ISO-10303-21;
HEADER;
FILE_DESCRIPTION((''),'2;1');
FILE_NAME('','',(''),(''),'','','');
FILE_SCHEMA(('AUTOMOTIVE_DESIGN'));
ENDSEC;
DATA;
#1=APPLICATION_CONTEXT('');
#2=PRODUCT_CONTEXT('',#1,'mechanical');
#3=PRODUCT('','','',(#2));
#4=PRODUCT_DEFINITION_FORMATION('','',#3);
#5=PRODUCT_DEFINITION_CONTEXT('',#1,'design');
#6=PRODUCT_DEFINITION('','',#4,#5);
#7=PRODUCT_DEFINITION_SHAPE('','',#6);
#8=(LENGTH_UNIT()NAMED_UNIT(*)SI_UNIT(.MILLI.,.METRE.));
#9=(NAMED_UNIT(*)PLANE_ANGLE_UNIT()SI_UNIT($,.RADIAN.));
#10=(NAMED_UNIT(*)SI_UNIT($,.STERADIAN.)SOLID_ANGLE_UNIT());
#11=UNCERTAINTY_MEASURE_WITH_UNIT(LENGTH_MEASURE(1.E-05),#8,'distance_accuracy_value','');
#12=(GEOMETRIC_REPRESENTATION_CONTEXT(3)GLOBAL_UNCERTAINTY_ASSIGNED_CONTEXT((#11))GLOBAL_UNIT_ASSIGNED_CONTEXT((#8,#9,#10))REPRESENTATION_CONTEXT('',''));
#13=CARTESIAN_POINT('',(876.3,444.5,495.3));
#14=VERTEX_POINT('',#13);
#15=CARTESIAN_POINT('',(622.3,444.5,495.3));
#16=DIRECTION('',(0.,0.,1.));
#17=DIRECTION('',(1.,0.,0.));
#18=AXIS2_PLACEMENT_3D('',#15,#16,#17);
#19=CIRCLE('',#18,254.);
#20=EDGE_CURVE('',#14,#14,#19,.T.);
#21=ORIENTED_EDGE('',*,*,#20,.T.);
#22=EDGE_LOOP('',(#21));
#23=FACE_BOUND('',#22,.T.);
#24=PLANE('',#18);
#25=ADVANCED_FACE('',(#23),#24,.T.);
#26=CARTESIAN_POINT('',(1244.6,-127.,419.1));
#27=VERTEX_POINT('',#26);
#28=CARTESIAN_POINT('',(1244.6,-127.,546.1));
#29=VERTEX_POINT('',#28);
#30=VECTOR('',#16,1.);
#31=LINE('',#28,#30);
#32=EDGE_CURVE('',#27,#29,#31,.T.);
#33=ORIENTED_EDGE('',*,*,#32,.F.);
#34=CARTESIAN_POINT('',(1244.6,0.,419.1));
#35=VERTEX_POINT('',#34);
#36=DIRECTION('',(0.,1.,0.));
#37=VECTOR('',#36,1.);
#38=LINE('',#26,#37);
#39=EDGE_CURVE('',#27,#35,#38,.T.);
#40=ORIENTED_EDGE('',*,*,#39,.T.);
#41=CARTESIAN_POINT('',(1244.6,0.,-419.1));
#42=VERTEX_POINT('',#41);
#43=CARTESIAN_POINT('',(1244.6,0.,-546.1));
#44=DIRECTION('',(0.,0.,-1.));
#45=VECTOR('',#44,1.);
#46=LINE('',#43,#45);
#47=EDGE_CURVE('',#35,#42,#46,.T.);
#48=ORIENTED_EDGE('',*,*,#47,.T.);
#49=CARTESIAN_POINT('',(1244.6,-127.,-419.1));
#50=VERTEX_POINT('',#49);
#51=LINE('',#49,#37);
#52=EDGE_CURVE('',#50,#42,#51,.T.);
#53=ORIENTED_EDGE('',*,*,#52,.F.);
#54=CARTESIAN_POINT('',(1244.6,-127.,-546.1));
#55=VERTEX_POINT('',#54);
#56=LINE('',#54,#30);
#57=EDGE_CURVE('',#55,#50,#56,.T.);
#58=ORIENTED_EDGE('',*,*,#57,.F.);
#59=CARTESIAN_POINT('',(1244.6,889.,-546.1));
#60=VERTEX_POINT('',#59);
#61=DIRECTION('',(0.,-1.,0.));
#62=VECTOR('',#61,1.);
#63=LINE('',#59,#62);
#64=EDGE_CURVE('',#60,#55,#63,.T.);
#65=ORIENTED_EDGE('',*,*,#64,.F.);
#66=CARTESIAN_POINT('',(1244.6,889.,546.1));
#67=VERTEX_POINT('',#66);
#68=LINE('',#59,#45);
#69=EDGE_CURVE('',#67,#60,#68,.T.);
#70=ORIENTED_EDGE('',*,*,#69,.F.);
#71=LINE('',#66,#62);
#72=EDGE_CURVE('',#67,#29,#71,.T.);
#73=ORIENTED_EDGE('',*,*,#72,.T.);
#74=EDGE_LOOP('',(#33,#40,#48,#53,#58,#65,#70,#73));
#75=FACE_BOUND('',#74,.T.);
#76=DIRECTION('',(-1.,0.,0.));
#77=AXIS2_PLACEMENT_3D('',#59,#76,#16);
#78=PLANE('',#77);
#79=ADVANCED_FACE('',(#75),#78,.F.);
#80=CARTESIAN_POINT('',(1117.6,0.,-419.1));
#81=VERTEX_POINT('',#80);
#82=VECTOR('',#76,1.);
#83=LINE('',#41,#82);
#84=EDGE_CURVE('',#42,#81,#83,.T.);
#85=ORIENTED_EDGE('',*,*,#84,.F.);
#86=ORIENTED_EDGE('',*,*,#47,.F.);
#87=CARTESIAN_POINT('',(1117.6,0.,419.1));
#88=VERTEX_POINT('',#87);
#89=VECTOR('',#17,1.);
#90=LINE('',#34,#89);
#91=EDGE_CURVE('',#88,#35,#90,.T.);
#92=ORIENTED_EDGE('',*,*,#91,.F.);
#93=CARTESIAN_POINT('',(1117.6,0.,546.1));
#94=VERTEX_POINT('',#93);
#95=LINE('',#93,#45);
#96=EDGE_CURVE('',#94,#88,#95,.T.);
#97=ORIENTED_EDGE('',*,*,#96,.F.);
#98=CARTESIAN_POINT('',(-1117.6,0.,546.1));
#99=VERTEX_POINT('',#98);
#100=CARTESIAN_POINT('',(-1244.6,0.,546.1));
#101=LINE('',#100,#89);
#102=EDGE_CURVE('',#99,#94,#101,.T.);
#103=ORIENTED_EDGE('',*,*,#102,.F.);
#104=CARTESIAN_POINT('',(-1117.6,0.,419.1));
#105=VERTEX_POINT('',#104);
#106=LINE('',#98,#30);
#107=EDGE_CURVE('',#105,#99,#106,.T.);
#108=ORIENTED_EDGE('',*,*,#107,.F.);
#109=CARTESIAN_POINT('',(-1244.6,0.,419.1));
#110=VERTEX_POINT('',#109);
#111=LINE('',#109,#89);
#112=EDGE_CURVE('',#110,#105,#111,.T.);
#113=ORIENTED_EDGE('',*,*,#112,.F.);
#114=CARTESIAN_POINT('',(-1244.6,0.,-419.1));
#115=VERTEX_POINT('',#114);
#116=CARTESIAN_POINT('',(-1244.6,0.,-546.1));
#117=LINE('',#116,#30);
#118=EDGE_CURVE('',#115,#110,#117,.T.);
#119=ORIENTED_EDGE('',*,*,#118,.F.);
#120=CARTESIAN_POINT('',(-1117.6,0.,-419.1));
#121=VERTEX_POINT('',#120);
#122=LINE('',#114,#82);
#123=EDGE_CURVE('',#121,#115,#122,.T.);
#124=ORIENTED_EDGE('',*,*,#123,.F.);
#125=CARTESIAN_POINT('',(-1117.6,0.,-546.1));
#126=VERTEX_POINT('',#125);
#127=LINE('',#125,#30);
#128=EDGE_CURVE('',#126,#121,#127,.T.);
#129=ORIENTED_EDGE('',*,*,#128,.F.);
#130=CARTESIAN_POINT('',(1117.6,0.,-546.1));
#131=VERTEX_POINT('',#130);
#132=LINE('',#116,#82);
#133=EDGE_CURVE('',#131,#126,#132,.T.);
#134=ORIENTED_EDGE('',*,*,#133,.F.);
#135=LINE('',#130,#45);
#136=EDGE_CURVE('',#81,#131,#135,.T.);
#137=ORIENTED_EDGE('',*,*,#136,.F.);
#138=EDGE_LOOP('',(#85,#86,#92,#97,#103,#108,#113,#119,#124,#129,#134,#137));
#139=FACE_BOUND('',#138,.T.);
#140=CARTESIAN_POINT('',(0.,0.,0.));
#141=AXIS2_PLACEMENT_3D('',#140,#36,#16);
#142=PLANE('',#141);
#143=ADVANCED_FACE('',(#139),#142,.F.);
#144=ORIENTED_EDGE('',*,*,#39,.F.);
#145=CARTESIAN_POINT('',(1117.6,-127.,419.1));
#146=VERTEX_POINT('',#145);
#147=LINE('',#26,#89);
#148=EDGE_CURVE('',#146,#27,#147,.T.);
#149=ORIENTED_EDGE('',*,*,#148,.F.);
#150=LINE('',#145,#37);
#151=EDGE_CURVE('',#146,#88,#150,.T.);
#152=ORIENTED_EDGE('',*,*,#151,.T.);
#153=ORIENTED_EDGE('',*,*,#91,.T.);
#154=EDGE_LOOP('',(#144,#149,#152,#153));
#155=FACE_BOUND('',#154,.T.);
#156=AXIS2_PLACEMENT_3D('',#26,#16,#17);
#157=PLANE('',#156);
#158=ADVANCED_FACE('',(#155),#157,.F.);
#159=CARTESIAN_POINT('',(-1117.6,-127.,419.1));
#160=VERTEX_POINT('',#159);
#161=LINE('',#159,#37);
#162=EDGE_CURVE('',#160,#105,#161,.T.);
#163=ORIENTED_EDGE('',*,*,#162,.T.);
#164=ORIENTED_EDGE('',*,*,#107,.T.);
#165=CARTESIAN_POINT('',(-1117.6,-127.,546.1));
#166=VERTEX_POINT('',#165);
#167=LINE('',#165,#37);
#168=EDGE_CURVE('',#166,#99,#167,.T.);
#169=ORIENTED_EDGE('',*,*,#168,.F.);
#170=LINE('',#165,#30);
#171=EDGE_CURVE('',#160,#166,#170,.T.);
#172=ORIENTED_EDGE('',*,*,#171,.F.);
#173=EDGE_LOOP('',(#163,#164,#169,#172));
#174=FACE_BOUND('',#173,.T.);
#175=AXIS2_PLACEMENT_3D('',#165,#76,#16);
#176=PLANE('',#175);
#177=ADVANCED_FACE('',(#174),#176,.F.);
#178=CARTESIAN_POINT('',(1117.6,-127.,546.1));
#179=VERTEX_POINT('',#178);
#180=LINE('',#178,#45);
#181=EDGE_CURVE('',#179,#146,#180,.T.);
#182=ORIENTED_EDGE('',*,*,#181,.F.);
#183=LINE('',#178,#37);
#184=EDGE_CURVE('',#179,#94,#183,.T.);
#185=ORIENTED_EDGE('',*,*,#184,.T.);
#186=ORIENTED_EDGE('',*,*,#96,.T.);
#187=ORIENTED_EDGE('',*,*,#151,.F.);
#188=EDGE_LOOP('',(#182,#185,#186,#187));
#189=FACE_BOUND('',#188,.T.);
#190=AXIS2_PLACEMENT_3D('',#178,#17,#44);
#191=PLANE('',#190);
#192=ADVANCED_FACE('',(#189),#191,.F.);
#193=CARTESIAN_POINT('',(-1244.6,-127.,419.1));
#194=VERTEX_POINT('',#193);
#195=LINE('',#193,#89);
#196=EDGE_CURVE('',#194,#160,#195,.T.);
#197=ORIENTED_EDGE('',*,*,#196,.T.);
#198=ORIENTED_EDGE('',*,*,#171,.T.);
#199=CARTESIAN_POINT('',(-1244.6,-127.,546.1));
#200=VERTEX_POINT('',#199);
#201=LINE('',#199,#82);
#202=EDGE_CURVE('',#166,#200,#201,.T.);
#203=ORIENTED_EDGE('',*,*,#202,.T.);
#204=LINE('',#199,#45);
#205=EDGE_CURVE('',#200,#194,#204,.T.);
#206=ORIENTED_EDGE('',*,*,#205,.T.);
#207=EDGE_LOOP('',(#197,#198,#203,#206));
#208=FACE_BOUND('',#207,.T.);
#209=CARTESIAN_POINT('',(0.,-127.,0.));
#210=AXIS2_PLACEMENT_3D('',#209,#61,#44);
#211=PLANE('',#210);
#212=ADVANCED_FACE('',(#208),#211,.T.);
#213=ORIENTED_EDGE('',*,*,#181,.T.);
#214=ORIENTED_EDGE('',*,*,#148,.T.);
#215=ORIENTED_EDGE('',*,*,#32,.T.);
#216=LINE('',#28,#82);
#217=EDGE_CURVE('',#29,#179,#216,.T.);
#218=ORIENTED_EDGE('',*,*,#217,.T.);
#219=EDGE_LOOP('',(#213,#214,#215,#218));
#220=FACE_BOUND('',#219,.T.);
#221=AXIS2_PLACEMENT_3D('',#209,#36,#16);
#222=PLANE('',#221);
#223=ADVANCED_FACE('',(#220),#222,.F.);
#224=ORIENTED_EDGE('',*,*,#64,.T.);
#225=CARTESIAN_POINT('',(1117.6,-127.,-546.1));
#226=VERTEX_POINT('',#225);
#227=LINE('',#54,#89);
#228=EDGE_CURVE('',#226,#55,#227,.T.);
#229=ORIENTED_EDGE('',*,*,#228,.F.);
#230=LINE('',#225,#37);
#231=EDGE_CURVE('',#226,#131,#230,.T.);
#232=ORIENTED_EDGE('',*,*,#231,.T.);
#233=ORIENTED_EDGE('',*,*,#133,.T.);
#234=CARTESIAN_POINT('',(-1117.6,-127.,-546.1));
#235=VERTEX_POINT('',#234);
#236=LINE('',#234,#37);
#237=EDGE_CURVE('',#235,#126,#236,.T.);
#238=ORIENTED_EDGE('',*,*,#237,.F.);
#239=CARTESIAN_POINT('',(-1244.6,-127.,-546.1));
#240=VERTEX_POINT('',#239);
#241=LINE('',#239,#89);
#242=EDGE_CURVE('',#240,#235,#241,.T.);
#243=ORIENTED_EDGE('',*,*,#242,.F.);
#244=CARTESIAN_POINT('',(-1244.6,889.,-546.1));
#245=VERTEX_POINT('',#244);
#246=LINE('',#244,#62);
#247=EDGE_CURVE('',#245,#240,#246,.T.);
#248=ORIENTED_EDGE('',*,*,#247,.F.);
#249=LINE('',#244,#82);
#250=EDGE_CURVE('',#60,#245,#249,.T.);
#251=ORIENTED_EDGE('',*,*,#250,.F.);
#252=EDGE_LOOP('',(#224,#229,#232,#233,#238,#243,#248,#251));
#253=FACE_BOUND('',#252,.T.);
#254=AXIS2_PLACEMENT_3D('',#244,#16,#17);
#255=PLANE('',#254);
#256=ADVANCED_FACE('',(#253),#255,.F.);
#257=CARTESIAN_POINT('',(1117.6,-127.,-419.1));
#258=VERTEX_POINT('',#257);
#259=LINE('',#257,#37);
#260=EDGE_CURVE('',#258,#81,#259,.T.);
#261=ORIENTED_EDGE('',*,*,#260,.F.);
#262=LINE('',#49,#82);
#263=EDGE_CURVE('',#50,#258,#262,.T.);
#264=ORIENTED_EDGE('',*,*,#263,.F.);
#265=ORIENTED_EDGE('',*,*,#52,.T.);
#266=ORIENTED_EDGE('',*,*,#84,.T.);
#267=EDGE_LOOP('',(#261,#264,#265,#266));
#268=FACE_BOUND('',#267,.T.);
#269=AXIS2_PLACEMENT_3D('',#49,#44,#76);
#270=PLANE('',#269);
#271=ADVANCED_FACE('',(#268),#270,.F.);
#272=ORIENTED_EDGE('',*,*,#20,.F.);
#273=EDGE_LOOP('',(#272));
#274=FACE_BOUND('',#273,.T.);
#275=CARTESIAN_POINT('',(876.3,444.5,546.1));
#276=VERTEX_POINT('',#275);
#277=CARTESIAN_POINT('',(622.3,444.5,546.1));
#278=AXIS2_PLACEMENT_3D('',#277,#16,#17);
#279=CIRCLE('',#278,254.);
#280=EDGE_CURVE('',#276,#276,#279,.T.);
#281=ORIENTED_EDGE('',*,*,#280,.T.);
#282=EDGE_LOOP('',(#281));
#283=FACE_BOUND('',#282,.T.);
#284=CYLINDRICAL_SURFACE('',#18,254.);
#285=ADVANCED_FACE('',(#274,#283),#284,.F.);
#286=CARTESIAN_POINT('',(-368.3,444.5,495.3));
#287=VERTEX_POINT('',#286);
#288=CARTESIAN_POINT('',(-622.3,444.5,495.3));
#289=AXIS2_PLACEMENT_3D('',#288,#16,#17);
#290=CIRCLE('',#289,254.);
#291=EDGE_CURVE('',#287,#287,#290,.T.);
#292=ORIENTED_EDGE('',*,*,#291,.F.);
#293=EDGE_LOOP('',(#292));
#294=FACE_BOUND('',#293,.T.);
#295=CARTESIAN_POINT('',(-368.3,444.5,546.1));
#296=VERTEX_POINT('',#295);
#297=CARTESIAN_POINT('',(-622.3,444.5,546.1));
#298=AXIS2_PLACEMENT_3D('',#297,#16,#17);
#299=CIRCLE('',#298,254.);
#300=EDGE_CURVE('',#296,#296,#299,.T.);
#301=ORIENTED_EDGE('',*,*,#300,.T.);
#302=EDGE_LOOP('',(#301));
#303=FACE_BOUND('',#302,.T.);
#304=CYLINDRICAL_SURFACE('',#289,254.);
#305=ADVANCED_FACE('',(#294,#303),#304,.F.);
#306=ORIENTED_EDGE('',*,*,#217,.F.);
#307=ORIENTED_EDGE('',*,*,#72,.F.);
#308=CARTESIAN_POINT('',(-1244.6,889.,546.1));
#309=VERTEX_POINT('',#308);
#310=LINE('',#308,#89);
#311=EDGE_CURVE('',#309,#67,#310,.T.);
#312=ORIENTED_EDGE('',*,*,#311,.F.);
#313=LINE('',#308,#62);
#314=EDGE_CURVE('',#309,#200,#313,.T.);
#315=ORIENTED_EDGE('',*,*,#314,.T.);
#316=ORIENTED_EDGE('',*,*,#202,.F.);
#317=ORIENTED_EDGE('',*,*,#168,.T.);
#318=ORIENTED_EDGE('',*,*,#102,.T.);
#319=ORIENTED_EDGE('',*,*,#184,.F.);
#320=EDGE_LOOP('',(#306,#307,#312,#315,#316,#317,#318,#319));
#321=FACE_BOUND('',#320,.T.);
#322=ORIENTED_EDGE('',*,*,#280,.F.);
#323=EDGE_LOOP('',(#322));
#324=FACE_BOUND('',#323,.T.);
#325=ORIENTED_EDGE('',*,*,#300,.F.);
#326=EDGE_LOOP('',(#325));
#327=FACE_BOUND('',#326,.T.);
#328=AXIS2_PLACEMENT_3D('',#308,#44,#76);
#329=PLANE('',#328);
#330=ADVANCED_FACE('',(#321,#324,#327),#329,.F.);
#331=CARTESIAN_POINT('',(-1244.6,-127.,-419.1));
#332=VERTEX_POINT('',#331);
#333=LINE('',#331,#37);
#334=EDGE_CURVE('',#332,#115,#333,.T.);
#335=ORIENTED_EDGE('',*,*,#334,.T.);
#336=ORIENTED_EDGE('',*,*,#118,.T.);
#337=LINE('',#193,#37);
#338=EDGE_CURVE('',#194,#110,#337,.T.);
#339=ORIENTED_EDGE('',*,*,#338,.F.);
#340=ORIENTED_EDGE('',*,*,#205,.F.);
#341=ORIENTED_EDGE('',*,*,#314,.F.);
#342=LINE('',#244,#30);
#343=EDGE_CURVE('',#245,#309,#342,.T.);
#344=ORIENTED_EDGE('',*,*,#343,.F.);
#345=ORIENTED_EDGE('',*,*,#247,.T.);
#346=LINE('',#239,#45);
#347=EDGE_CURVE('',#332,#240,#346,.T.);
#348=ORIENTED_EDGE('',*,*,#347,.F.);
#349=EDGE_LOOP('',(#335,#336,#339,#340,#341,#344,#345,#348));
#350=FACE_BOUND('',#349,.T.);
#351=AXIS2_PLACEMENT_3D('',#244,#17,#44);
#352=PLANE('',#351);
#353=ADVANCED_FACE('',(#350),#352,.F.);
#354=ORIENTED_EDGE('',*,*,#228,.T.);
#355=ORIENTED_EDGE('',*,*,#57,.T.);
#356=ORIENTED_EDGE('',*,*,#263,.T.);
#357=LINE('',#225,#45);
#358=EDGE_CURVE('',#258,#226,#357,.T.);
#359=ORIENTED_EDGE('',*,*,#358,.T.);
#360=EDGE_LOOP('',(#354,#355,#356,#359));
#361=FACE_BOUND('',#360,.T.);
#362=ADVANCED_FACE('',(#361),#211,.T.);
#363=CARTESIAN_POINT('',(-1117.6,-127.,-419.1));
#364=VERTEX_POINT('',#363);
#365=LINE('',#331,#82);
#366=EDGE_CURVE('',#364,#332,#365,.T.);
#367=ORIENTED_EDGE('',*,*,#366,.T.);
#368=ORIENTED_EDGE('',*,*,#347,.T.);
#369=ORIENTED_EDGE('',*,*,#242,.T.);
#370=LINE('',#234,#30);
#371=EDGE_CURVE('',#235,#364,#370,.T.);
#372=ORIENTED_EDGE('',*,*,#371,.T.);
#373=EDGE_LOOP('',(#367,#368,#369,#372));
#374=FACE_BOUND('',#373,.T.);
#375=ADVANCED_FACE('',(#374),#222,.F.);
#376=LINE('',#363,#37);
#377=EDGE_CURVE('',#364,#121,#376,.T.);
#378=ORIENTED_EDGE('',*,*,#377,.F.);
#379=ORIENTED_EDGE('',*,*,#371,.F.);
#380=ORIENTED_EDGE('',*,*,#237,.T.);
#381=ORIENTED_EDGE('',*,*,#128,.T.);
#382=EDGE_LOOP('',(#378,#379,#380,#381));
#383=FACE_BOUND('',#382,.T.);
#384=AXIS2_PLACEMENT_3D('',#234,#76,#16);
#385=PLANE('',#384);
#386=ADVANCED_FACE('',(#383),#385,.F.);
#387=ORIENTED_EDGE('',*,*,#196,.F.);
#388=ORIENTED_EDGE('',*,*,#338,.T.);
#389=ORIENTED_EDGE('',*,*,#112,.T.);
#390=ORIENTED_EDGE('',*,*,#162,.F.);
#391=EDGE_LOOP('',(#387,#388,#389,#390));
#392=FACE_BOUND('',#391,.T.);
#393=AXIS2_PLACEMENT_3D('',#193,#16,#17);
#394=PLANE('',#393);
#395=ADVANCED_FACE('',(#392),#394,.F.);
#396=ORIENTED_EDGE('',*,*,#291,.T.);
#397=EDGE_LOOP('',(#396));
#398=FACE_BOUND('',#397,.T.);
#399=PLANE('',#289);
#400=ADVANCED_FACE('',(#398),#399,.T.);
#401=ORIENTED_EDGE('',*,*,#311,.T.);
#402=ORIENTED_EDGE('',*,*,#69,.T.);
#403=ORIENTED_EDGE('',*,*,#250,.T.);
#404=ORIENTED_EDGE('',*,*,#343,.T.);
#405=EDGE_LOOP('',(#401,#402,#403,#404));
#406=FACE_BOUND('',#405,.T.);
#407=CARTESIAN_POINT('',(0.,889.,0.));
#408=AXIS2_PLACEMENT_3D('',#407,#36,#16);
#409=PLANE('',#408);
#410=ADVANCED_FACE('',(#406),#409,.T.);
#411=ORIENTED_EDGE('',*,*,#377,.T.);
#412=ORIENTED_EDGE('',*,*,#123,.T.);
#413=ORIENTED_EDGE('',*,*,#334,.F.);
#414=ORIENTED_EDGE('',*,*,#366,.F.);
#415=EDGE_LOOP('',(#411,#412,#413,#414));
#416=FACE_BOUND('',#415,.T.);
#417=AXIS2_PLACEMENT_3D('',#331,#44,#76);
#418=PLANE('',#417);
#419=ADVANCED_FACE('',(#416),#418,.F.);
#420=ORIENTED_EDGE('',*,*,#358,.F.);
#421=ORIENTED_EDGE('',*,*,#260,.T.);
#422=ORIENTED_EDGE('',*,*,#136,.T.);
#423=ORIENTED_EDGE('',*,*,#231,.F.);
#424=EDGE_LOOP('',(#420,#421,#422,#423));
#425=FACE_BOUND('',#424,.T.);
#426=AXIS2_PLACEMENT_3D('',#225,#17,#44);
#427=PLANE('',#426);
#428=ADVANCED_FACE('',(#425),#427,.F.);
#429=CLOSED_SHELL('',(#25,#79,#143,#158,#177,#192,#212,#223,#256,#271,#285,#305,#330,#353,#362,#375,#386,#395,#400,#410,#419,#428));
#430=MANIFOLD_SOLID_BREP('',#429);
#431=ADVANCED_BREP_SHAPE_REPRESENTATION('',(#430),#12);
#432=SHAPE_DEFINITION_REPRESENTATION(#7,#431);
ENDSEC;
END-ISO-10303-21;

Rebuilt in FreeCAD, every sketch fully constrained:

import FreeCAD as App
import Part
import Sketcher

V = App.Vector
Q = App.Units.Quantity


def add_polygon(sketch, points):
    """Adds a closed chain of lines whose ends are joined by coincident constraints."""
    first, n = sketch.GeometryCount, len(points)
    for a, b in zip(points, points[1:] + points[:1]):
        sketch.addGeometry(Part.LineSegment(App.Vector(*a, 0), App.Vector(*b, 0)), False)
    for i in range(n):
        sketch.addConstraint(Sketcher.Constraint("Coincident", first + i, 2, first + (i + 1) % n, 1))

doc = App.newDocument("Part")
body = doc.addObject("PartDesign::Body", "Body")

# Sketch on XZ plane
sketch1 = doc.addObject("Sketcher::SketchObject", "Sketch")
body.addObject(sketch1)
sketch1.AttachmentSupport = (doc.XZ_Plane, [""])
sketch1.MapMode = "FlatFace"
add_polygon(sketch1, [(-1245, -546), (-1245, 546), (1245, 546), (1245, -546)])  # lines 0-3
sketch1.addConstraint(Sketcher.Constraint("Vertical", 0))
sketch1.addConstraint(Sketcher.Constraint("Horizontal", 1))
sketch1.addConstraint(Sketcher.Constraint("Vertical", 2))
sketch1.addConstraint(Sketcher.Constraint("Horizontal", 3))
sketch1.addConstraint(Sketcher.Constraint("Symmetric", 0, 2, 2, 2, -1, 1))
sketch1.addConstraint(Sketcher.Constraint("DistanceX", 1, 1, 1, 2, Q("98 in")))
sketch1.addConstraint(Sketcher.Constraint("DistanceY", 0, 1, 0, 2, Q("43 in")))
pad1 = doc.addObject("PartDesign::Pad", "Pad")
body.addObject(pad1)
pad1.Profile = sketch1
pad1.Length = Q("35 in")
pad1.Reversed = True

# Sketch on XY plane
sketch2 = doc.addObject("Sketcher::SketchObject", "Sketch001")
body.addObject(sketch2)
sketch2.AttachmentSupport = (doc.XY_Plane, [""])
sketch2.MapMode = "FlatFace"
sketch2.AttachmentOffset = App.Placement(V(0, 0, 21.5 * 25.4), App.Rotation())
sketch2.addGeometry(Part.Circle(V(622, 444, 0), V(0, 0, 1), 254), False)
sketch2.addGeometry(Part.Circle(V(-622, 444, 0), V(0, 0, 1), 254), False)
sketch2.addConstraint(Sketcher.Constraint("Equal", 0, 1))
sketch2.addConstraint(Sketcher.Constraint("Symmetric", 0, 3, 1, 3, -2))
sketch2.addConstraint(Sketcher.Constraint("Diameter", 0, Q("20 in")))
sketch2.addConstraint(Sketcher.Constraint("DistanceX", 1, 3, 0, 3, Q("49 in")))
sketch2.addConstraint(Sketcher.Constraint("DistanceY", -1, 1, 0, 3, Q("17.5 in")))
pocket1 = doc.addObject("PartDesign::Pocket", "Pocket")
body.addObject(pocket1)
pocket1.Profile = sketch2
pocket1.Length = Q("2 in")

# Sketch on XZ plane
sketch3 = doc.addObject("Sketcher::SketchObject", "Sketch002")
body.addObject(sketch3)
sketch3.AttachmentSupport = (doc.XZ_Plane, [""])
sketch3.MapMode = "FlatFace"
add_polygon(sketch3, [(-1245, 546), (-1245, 419), (-1118, 419), (-1118, 546)])  # lines 0-3
add_polygon(sketch3, [(-1245, -419), (-1245, -546), (-1118, -546), (-1118, -419)])  # lines 4-7
add_polygon(sketch3, [(1118, 546), (1118, 419), (1245, 419), (1245, 546)])  # lines 8-11
add_polygon(sketch3, [(1118, -419), (1118, -546), (1245, -546), (1245, -419)])  # lines 12-15
sketch3.addConstraint(Sketcher.Constraint("Vertical", 0))
sketch3.addConstraint(Sketcher.Constraint("Horizontal", 1))
sketch3.addConstraint(Sketcher.Constraint("Vertical", 2))
sketch3.addConstraint(Sketcher.Constraint("Horizontal", 3))
sketch3.addConstraint(Sketcher.Constraint("Vertical", 4))
sketch3.addConstraint(Sketcher.Constraint("Horizontal", 5))
sketch3.addConstraint(Sketcher.Constraint("Vertical", 6))
sketch3.addConstraint(Sketcher.Constraint("Horizontal", 7))
sketch3.addConstraint(Sketcher.Constraint("Vertical", 8))
sketch3.addConstraint(Sketcher.Constraint("Horizontal", 9))
sketch3.addConstraint(Sketcher.Constraint("Vertical", 10))
sketch3.addConstraint(Sketcher.Constraint("Horizontal", 11))
sketch3.addConstraint(Sketcher.Constraint("Vertical", 12))
sketch3.addConstraint(Sketcher.Constraint("Horizontal", 13))
sketch3.addConstraint(Sketcher.Constraint("Vertical", 14))
sketch3.addConstraint(Sketcher.Constraint("Horizontal", 15))
sketch3.addConstraint(Sketcher.Constraint("Symmetric", 6, 2, 8, 2, -1, 1))
sketch3.addConstraint(Sketcher.Constraint("Symmetric", 4, 2, 10, 2, -1, 1))
sketch3.addConstraint(Sketcher.Constraint("Symmetric", 2, 2, 12, 2, -1, 1))
sketch3.addConstraint(Sketcher.Constraint("Symmetric", 0, 2, 14, 2, -1, 1))
sketch3.addConstraint(Sketcher.Constraint("Symmetric", 1, 2, 8, 2, -2))
sketch3.addConstraint(Sketcher.Constraint("Symmetric", 3, 2, 10, 2, -2))
sketch3.addConstraint(Sketcher.Constraint("Equal", 15, 0))
sketch3.addConstraint(Sketcher.Constraint("DistanceX", 1, 1, 1, 2, Q("5 in")))
sketch3.addConstraint(Sketcher.Constraint("DistanceX", 0, 2, -1, 1, Q("49 in")))
sketch3.addConstraint(Sketcher.Constraint("DistanceY", 4, 2, 0, 2, Q("38 in")))
pad2 = doc.addObject("PartDesign::Pad", "Pad001")
body.addObject(pad2)
pad2.Profile = sketch3
pad2.Length = Q("5 in")

doc.recompute()
